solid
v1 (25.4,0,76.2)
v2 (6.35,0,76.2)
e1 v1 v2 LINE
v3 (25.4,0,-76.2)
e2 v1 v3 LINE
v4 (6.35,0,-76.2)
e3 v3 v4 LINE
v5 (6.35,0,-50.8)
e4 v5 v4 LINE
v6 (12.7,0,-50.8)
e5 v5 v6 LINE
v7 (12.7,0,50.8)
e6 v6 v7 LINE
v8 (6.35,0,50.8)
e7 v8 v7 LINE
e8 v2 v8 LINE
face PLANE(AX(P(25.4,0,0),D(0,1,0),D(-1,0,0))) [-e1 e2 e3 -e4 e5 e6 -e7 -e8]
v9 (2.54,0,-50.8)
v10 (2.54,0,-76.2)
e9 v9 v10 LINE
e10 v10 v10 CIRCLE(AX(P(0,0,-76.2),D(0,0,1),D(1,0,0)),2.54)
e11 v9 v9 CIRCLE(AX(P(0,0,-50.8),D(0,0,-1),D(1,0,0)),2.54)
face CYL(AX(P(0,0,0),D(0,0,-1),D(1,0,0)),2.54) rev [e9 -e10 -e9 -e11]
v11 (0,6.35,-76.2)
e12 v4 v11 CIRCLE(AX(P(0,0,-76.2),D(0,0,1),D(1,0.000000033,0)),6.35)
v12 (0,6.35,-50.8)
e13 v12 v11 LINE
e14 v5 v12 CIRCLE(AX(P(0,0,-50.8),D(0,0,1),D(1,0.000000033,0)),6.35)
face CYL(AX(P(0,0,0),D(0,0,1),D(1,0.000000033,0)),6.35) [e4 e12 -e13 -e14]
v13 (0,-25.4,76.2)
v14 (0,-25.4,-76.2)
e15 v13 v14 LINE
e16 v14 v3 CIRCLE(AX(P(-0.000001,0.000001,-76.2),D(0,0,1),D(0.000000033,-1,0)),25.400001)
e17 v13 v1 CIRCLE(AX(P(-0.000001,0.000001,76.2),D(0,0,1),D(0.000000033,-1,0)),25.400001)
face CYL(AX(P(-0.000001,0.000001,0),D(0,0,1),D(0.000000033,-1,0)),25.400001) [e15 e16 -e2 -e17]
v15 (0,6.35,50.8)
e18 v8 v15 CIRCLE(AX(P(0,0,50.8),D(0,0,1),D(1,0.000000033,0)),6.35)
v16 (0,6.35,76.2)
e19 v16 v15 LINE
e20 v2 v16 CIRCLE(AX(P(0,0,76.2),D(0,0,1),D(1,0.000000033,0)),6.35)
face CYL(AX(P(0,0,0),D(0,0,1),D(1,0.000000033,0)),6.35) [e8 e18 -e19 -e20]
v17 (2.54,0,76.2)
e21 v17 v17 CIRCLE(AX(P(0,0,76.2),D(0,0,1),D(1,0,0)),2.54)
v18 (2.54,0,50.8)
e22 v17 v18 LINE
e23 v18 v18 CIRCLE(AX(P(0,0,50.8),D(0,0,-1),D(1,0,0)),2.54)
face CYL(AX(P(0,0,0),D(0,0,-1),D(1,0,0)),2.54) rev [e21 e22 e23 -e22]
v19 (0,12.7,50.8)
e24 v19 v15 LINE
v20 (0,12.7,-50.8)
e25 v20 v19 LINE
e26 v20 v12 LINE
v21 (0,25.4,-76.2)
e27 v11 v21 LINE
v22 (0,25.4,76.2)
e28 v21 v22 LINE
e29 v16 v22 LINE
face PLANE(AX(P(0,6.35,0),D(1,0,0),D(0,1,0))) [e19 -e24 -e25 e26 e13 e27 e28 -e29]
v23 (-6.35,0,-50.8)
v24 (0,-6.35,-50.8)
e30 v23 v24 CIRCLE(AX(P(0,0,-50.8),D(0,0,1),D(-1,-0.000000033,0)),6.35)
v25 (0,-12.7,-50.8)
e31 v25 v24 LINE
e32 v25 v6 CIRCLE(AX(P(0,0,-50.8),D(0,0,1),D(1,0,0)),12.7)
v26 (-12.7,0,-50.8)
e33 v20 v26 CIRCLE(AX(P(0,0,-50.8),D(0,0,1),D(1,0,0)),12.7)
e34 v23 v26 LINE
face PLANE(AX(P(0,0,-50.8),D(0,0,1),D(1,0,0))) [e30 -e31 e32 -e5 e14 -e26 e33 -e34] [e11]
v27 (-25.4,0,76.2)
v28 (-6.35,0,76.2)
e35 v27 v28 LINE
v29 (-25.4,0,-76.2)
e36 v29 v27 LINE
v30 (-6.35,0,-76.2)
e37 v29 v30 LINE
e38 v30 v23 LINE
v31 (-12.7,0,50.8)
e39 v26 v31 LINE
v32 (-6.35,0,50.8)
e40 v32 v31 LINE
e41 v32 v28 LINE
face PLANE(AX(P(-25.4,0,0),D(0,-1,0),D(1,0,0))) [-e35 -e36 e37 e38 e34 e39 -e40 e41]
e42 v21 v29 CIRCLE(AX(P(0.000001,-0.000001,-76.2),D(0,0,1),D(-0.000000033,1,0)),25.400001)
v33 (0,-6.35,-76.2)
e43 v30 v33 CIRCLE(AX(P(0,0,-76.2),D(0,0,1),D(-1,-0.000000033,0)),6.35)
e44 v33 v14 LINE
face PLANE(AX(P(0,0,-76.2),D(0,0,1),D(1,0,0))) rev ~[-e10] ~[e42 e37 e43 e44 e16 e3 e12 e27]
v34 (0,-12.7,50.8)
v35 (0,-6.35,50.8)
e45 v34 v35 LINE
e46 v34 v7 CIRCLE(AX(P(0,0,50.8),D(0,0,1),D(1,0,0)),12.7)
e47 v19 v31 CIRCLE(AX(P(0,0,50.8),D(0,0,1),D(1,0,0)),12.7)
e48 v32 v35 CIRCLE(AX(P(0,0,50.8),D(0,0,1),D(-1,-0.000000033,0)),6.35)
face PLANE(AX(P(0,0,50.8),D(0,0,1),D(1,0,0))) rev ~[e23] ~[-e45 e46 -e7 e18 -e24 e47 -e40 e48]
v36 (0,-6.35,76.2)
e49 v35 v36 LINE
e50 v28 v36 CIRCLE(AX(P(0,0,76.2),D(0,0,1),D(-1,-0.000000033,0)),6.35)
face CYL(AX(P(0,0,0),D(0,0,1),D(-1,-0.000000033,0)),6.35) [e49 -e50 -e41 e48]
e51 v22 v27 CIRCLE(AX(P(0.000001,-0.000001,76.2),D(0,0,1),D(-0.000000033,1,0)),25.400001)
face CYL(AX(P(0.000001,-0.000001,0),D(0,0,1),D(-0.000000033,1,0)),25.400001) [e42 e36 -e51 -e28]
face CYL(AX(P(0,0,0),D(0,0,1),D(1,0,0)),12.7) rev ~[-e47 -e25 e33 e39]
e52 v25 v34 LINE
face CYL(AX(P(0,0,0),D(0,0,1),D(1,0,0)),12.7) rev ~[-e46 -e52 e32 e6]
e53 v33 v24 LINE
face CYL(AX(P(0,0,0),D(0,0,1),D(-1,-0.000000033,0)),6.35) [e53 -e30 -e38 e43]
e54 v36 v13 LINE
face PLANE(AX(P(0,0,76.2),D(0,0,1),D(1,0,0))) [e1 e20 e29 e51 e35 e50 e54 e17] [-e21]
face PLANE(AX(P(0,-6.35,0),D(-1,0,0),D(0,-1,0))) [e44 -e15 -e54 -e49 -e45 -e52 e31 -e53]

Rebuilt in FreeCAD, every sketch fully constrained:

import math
import FreeCAD as App
import Part
import Sketcher

V = App.Vector
Q = App.Units.Quantity

doc = App.newDocument("Part")
body = doc.addObject("PartDesign::Body", "Body")

sketch1 = body.newObject("Sketcher::SketchObject", "Sketch")
sketch1.AttachmentSupport = (doc.getObject("XY_Plane"), [""])
sketch1.MapMode = "FlatFace"
sketch1.addGeometry(Part.LineSegment(V(0, 6.35, 0), V(0, 25.4, 0)), False)
sketch1.addGeometry(Part.ArcOfCircle(Part.Circle(V(0.000001, -0.000001, 0), V(0, 0, 1), 25.400001), math.radians(90.000002), math.radians(179.999998)), False)
sketch1.addGeometry(Part.LineSegment(V(-25.4, 0, 0), V(-6.35, 0, 0)), False)
sketch1.addGeometry(Part.ArcOfCircle(Part.Circle(V(0, 0, 0), V(0, 0, 1), 6.35), math.radians(-179.999998), math.radians(-90.000002)), False)
sketch1.addGeometry(Part.LineSegment(V(0, -6.35, 0), V(0, -25.4, 0)), False)
sketch1.addGeometry(Part.ArcOfCircle(Part.Circle(V(-0.000001, 0.000001, 0), V(0, 0, 1), 25.400001), math.radians(-89.999998), math.radians(-0.000002)), False)
sketch1.addGeometry(Part.LineSegment(V(25.4, 0, 0), V(6.35, 0, 0)), False)
sketch1.addGeometry(Part.ArcOfCircle(Part.Circle(V(0, 0, 0), V(0, 0, 1), 6.35), math.radians(0.000002), math.radians(89.999998)), False)
sketch1.addGeometry(Part.Circle(V(0, 0, 0), V(0, 0, 1), 2.54), False)
sketch1.addConstraint(Sketcher.Constraint("Coincident", 0, 2, 1, 1))
sketch1.addConstraint(Sketcher.Constraint("Coincident", 1, 2, 2, 1))
sketch1.addConstraint(Sketcher.Constraint("Coincident", 2, 2, 3, 1))
sketch1.addConstraint(Sketcher.Constraint("Coincident", 3, 2, 4, 1))
sketch1.addConstraint(Sketcher.Constraint("Coincident", 4, 2, 5, 1))
sketch1.addConstraint(Sketcher.Constraint("Coincident", 5, 2, 6, 1))
sketch1.addConstraint(Sketcher.Constraint("Coincident", 6, 2, 7, 1))
sketch1.addConstraint(Sketcher.Constraint("Coincident", 7, 2, 0, 1))
sketch1.addConstraint(Sketcher.Constraint("Vertical", 0))
sketch1.addConstraint(Sketcher.Constraint("Horizontal", 2))
sketch1.addConstraint(Sketcher.Constraint("Vertical", 4))
sketch1.addConstraint(Sketcher.Constraint("Horizontal", 6))
sketch1.addConstraint(Sketcher.Constraint("Coincident", 1, 3, -1, 1))
sketch1.addConstraint(Sketcher.Constraint("Coincident", 3, 3, -1, 1))
sketch1.addConstraint(Sketcher.Constraint("Coincident", 5, 3, -1, 1))
sketch1.addConstraint(Sketcher.Constraint("Coincident", 7, 3, -1, 1))
sketch1.addConstraint(Sketcher.Constraint("Coincident", 8, 3, -1, 1))
sketch1.addConstraint(Sketcher.Constraint("Equal", 1, 5))
sketch1.addConstraint(Sketcher.Constraint("Equal", 3, 7))
sketch1.addConstraint(Sketcher.Constraint("PointOnObject", 0, 2, -2))
sketch1.addConstraint(Sketcher.Constraint("PointOnObject", 1, 2, -1))
sketch1.addConstraint(Sketcher.Constraint("PointOnObject", 3, 2, -2))
sketch1.addConstraint(Sketcher.Constraint("PointOnObject", 5, 2, -1))
sketch1.addConstraint(Sketcher.Constraint("Radius", 1, Q("1 in")))
sketch1.addConstraint(Sketcher.Constraint("Diameter", 8, Q("0.2 in")))
sketch1.addConstraint(Sketcher.Constraint("Radius", 3, Q("0.25 in")))
pad1 = body.newObject("PartDesign::Pad", "Pad")
pad1.Profile = sketch1
pad1.Length = Q("6 in")
pad1.Midplane = True

sketch2 = body.newObject("Sketcher::SketchObject", "Sketch001")
sketch2.AttachmentSupport = (doc.getObject("XY_Plane"), [""])
sketch2.MapMode = "FlatFace"
sketch2.addGeometry(Part.Circle(V(0, 0, 0), V(0, 0, 1), 12.7), False)
sketch2.addConstraint(Sketcher.Constraint("Coincident", 0, 3, -1, 1))
sketch2.addConstraint(Sketcher.Constraint("Diameter", 0, Q("1 in")))
pocket1 = body.newObject("PartDesign::Pocket", "Pocket")
pocket1.Profile = sketch2
pocket1.Length = Q("4 in")
pocket1.Midplane = True

doc.recompute()
